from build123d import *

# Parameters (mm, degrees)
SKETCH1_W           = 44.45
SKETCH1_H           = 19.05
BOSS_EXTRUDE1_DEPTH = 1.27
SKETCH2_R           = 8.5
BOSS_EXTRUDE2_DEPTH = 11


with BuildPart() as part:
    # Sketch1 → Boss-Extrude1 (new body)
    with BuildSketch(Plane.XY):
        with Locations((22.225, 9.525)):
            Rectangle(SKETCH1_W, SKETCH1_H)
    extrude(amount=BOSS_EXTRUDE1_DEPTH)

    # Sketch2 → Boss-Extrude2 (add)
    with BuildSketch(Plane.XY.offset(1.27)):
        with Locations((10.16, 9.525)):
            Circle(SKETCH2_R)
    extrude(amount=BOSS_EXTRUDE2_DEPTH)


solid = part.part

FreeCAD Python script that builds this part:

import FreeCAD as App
import Part
import Sketcher
from FreeCAD import Vector
Q = App.Units.Quantity


def add_polygon(sketch, points):
    """Adds a closed chain of lines whose ends are joined by coincident constraints."""
    first, n = sketch.GeometryCount, len(points)
    for a, b in zip(points, points[1:] + points[:1]):
        sketch.addGeometry(Part.LineSegment(App.Vector(*a, 0), App.Vector(*b, 0)), False)
    for i in range(n):
        sketch.addConstraint(Sketcher.Constraint("Coincident", first + i, 2, first + (i + 1) % n, 1))

doc = App.newDocument("Part")
body = doc.addObject("PartDesign::Body", "Body")

# Sketch on XY plane
sketch1 = body.newObject("Sketcher::SketchObject", "Sketch")
sketch1.AttachmentSupport = (doc.getObject("XY_Plane"), [""])
sketch1.MapMode = "FlatFace"
add_polygon(sketch1, [(0, 19), (0, 0), (44, 0), (44, 19)])  # lines 0-3
sketch1.addConstraint([
    Sketcher.Constraint("Vertical", 0),
    Sketcher.Constraint("Horizontal", 1),
    Sketcher.Constraint("Vertical", 2),
    Sketcher.Constraint("Horizontal", 3),
    Sketcher.Constraint("Coincident", 0, 2, -1, 1),
    Sketcher.Constraint("DistanceX", 1, 1, 1, 2, Q("1.75 in")),
    Sketcher.Constraint("DistanceY", 0, 2, 0, 1, Q("0.75 in")),
])
pad1 = body.newObject("PartDesign::Pad", "Pad")
pad1.Profile = sketch1
pad1.Length = Q("0.05 in")

# Sketch on XY plane
sketch2 = body.newObject("Sketcher::SketchObject", "Sketch001")
sketch2.AttachmentSupport = (doc.getObject("XY_Plane"), [""])
sketch2.MapMode = "FlatFace"
sketch2.AttachmentOffset = App.Placement(Vector(0, 0, 0.05 * 25.4), App.Rotation())
sketch2.addGeometry(Part.Circle(Vector(10, 10, 0), Vector(0, 0, 1), 8), False)
sketch2.addConstraint([
    Sketcher.Constraint("DistanceX", -1, 1, 0, 3, Q("0.4 in")),
    Sketcher.Constraint("Diameter", 0, 17.0),
    Sketcher.Constraint("DistanceY", -1, 1, 0, 3, Q("0.375 in")),
])
pad2 = body.newObject("PartDesign::Pad", "Pad001")
pad2.Profile = sketch2
pad2.Length = 11

doc.recompute()
